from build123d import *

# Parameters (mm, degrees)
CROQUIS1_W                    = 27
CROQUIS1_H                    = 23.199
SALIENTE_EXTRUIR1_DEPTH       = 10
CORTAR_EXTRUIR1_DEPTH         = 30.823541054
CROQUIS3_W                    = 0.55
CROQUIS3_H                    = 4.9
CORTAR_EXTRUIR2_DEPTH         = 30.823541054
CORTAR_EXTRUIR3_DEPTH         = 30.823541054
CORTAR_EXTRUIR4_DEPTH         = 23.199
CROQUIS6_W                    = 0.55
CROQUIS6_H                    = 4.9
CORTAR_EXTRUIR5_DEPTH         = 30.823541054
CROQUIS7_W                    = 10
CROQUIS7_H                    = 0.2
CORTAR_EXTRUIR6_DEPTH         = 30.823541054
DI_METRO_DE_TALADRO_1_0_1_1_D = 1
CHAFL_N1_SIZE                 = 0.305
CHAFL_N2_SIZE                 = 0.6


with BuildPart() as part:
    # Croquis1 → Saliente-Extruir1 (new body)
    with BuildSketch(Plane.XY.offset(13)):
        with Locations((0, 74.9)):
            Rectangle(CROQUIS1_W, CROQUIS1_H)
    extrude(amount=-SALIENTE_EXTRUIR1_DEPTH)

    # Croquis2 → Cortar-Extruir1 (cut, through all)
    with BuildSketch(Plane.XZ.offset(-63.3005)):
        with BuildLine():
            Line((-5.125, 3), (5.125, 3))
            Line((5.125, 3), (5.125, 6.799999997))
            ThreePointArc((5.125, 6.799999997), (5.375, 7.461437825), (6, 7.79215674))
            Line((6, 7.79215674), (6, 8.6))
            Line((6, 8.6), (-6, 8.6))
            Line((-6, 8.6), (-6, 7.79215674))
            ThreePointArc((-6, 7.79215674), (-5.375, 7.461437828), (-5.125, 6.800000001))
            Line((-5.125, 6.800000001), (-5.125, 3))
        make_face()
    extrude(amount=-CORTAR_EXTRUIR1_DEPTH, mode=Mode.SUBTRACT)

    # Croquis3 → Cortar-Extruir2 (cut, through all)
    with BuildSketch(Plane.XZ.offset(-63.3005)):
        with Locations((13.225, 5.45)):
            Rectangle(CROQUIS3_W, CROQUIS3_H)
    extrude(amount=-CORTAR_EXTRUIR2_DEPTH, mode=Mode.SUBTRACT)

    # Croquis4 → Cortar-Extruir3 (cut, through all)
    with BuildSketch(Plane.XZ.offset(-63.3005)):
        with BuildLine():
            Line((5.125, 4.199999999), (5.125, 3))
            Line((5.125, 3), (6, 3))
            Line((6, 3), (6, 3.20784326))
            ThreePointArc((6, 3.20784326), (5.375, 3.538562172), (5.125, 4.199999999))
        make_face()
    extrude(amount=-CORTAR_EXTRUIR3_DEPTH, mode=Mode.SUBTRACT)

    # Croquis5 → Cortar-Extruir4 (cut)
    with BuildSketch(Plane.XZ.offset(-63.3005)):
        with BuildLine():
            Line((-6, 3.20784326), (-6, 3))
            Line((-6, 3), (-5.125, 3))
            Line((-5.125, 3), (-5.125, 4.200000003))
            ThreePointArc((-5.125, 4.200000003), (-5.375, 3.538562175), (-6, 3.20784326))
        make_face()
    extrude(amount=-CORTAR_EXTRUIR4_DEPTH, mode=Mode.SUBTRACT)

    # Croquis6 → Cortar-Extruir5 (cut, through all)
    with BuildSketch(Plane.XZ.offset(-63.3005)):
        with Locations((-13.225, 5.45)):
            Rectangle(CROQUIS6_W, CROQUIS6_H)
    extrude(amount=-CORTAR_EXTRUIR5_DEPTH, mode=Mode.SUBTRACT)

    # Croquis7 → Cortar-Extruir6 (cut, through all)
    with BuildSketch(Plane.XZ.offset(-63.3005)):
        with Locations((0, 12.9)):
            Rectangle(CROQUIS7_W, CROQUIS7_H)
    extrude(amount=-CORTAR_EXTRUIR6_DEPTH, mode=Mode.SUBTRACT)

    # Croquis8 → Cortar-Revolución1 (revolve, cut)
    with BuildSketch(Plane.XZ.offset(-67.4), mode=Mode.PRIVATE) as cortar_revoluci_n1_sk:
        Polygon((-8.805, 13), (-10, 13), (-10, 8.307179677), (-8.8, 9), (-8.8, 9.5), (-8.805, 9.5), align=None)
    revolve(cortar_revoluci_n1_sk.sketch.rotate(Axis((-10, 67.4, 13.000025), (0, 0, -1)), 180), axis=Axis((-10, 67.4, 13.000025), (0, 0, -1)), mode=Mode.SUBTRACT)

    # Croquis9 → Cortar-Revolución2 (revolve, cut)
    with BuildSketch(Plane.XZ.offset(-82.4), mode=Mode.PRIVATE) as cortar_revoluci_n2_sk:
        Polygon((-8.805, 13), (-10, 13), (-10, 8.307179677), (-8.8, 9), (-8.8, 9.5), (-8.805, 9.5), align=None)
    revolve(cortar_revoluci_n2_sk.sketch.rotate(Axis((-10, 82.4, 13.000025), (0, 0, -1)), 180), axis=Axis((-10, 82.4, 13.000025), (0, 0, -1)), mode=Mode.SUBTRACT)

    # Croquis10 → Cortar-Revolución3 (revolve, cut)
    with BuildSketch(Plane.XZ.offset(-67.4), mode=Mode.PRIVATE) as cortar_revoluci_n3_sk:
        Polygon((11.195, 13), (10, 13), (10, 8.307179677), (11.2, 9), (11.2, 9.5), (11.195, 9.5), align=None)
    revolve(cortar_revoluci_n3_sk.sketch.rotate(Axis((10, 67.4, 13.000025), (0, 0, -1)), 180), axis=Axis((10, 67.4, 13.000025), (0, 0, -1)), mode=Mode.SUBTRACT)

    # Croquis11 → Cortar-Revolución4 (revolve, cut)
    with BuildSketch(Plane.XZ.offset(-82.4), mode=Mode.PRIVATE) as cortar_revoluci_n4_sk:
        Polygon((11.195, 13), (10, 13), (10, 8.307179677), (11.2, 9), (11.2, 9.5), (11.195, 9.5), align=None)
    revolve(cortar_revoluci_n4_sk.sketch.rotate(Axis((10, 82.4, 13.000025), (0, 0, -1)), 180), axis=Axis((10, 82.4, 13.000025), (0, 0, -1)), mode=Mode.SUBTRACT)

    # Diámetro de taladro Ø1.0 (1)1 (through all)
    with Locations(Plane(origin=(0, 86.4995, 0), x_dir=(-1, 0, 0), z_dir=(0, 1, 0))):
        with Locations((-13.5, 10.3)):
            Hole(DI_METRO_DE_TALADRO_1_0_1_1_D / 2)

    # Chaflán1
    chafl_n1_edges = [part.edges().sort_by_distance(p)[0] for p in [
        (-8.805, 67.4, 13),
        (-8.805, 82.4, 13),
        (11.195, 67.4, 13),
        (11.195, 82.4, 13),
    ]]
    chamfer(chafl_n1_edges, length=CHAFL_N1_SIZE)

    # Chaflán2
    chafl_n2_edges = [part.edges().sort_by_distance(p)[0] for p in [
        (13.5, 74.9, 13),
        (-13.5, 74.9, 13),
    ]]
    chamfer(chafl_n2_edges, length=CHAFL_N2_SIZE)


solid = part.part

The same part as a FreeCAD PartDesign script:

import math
import FreeCAD as App
import Part
import Sketcher
Q = App.Units.Quantity


def edges_at(feature, points):
    """Names of the edges that pass closest to the given points."""
    edges = feature.Shape.Edges
    near = lambda p: min(range(len(edges)), key=lambda i: edges[i].distToShape(Part.Vertex(*p))[0])
    return sorted({f"Edge{near(p) + 1}" for p in points})


def add_polygon(sketch, points):
    """Adds a closed chain of lines whose ends are joined by coincident constraints."""
    first, n = sketch.GeometryCount, len(points)
    for a, b in zip(points, points[1:] + points[:1]):
        sketch.addGeometry(Part.LineSegment(App.Vector(*a, 0), App.Vector(*b, 0)), False)
    for i in range(n):
        sketch.addConstraint(Sketcher.Constraint("Coincident", first + i, 2, first + (i + 1) % n, 1))

doc = App.newDocument("Part")
body = doc.addObject("PartDesign::Body", "Body")

sketch1 = doc.addObject("Sketcher::SketchObject", "Sketch")
body.addObject(sketch1)
sketch1.AttachmentSupport = (doc.XY_Plane, [""])
sketch1.MapMode = "FlatFace"
sketch1.AttachmentOffset = App.Placement(App.Vector(0, 0, 13), App.Rotation())
add_polygon(sketch1, [(-14, 86), (-14, 63), (14, 63), (14, 86)])
sketch1.addConstraint([
    Sketcher.Constraint("Vertical", 0),
    Sketcher.Constraint("Horizontal", 1),
    Sketcher.Constraint("Vertical", 2),
    Sketcher.Constraint("Horizontal", 3),
    Sketcher.Constraint("DistanceX", 1, 1, 1, 2, Q("27 mm")),
    Sketcher.Constraint("DistanceX", 0, 2, -1, 1, Q("13.5 mm")),
    Sketcher.Constraint("DistanceY", 0, 2, 0, 1, Q("23.199 mm")),
    Sketcher.Constraint("DistanceY", -1, 1, 0, 2, Q("63.3005 mm")),
])
pad1 = doc.addObject("PartDesign::Pad", "Pad")
body.addObject(pad1)
pad1.Profile = sketch1
pad1.Length = 10
pad1.Reversed = True

sketch2 = doc.addObject("Sketcher::SketchObject", "Sketch001")
body.addObject(sketch2)
sketch2.AttachmentSupport = (doc.XZ_Plane, [""])
sketch2.MapMode = "FlatFace"
sketch2.AttachmentOffset = App.Placement(App.Vector(0, 0, -63.3005), App.Rotation())
sketch2.addGeometry([
    Part.LineSegment(App.Vector(-5.1, 3, 0), App.Vector(5.1, 3, 0)),
    Part.LineSegment(App.Vector(5.1, 3, 0), App.Vector(5.1, 6.8, 0)),
    Part.ArcOfCircle(Part.Circle(App.Vector(6.1, 6.8, 0), App.Vector(0, 0, 1), 1), math.radians(97), math.radians(180)),
    Part.LineSegment(App.Vector(6, 7.8, 0), App.Vector(6, 8.6, 0)),
    Part.LineSegment(App.Vector(6, 8.6, 0), App.Vector(-6, 8.6, 0)),
    Part.LineSegment(App.Vector(-6, 8.6, 0), App.Vector(-6, 7.8, 0)),
    Part.ArcOfCircle(Part.Circle(App.Vector(-6.1, 6.8, 0), App.Vector(0, 0, 1), 1), math.radians(0), math.radians(83)),
    Part.LineSegment(App.Vector(-5.1, 6.8, 0), App.Vector(-5.1, 3, 0)),
], False)
sketch2.addConstraint([
    Sketcher.Constraint("Coincident", 0, 2, 1, 1),
    Sketcher.Constraint("Tangent", 1, 2, 2, 2),
    Sketcher.Constraint("Coincident", 2, 1, 3, 1),
    Sketcher.Constraint("Coincident", 3, 2, 4, 1),
    Sketcher.Constraint("Coincident", 4, 2, 5, 1),
    Sketcher.Constraint("Coincident", 5, 2, 6, 2),
    Sketcher.Constraint("Tangent", 6, 1, 7, 1),
    Sketcher.Constraint("Coincident", 7, 2, 0, 1),
    Sketcher.Constraint("Horizontal", 0),
    Sketcher.Constraint("Vertical", 1),
    Sketcher.Constraint("Vertical", 3),
    Sketcher.Constraint("Horizontal", 4),
    Sketcher.Constraint("Vertical", 5),
    Sketcher.Constraint("Vertical", 7),
    Sketcher.Constraint("Equal", 2, 6),
    Sketcher.Constraint("Symmetric", 2, 3, 6, 3, -2),
    Sketcher.Constraint("Horizontal", 2, 1, 5, 2),
    Sketcher.Constraint("Radius", 2, Q("1 mm")),
    Sketcher.Constraint("DistanceX", 4, 2, 4, 1, Q("12 mm")),
    Sketcher.Constraint("DistanceY", 1, 1, 1, 2, Q("3.8 mm")),
    Sketcher.Constraint("DistanceY", -1, 1, 0, 2, Q("3 mm")),
    Sketcher.Constraint("DistanceX", 0, 1, 0, 2, Q("10.25 mm")),
    Sketcher.Constraint("DistanceY", -1, 1, 3, 2, Q("8.6 mm")),
])
pocket1 = doc.addObject("PartDesign::Pocket", "Pocket")
body.addObject(pocket1)
pocket1.Profile = sketch2
pocket1.Type = "ThroughAll"

sketch3 = doc.addObject("Sketcher::SketchObject", "Sketch002")
body.addObject(sketch3)
sketch3.AttachmentSupport = (doc.XZ_Plane, [""])
sketch3.MapMode = "FlatFace"
sketch3.AttachmentOffset = App.Placement(App.Vector(0, 0, -63.3005), App.Rotation())
add_polygon(sketch3, [(12.9, 7.9), (12.9, 3), (13.5, 3), (13.5, 7.9)])
sketch3.addConstraint([
    Sketcher.Constraint("Vertical", 0),
    Sketcher.Constraint("Horizontal", 1),
    Sketcher.Constraint("Vertical", 2),
    Sketcher.Constraint("Horizontal", 3),
    Sketcher.Constraint("DistanceY", 0, 2, 0, 1, Q("4.9 mm")),
    Sketcher.Constraint("DistanceY", -1, 1, 0, 2, Q("3 mm")),
    Sketcher.Constraint("DistanceX", 1, 1, 1, 2, Q("0.55 mm")),
    Sketcher.Constraint("DistanceX", -1, 1, 1, 2, Q("13.5 mm")),
])
pocket2 = doc.addObject("PartDesign::Pocket", "Pocket001")
body.addObject(pocket2)
pocket2.Profile = sketch3
pocket2.Type = "ThroughAll"

sketch4 = doc.addObject("Sketcher::SketchObject", "Sketch003")
body.addObject(sketch4)
sketch4.AttachmentSupport = (doc.XZ_Plane, [""])
sketch4.MapMode = "FlatFace"
sketch4.AttachmentOffset = App.Placement(App.Vector(0, 0, -63.3005), App.Rotation())
sketch4.addGeometry([
    Part.LineSegment(App.Vector(5.12, 4.2, 0), App.Vector(5.12, 3, 0)),
    Part.LineSegment(App.Vector(5.12, 3, 0), App.Vector(6, 3, 0)),
    Part.LineSegment(App.Vector(6, 3, 0), App.Vector(6, 3.21, 0)),
    Part.ArcOfCircle(Part.Circle(App.Vector(6.12, 4.2, 0), App.Vector(0, 0, 1), 1), math.radians(180), math.radians(263)),
], False)
sketch4.addConstraint([
    Sketcher.Constraint("Coincident", 0, 2, 1, 1),
    Sketcher.Constraint("Coincident", 1, 2, 2, 1),
    Sketcher.Constraint("Coincident", 2, 2, 3, 2),
    Sketcher.Constraint("Tangent", 3, 1, 0, 1),
    Sketcher.Constraint("Vertical", 0),
    Sketcher.Constraint("Horizontal", 1),
    Sketcher.Constraint("Vertical", 2),
    Sketcher.Constraint("Radius", 3, Q("1 mm")),
    Sketcher.Constraint("DistanceY", 0, 2, 0, 1, Q("1.2 mm")),
    Sketcher.Constraint("DistanceY", -1, 1, 0, 2, Q("3 mm")),
    Sketcher.Constraint("DistanceX", -1, 1, 1, 2, Q("6 mm")),
    Sketcher.Constraint("DistanceX", 1, 1, 1, 2, Q("0.875 mm")),
])
pocket3 = doc.addObject("PartDesign::Pocket", "Pocket002")
body.addObject(pocket3)
pocket3.Profile = sketch4
pocket3.Type = "ThroughAll"

sketch5 = doc.addObject("Sketcher::SketchObject", "Sketch004")
body.addObject(sketch5)
sketch5.AttachmentSupport = (doc.XZ_Plane, [""])
sketch5.MapMode = "FlatFace"
sketch5.AttachmentOffset = App.Placement(App.Vector(0, 0, -63.3005), App.Rotation())
sketch5.addGeometry([
    Part.LineSegment(App.Vector(-6, 3.21, 0), App.Vector(-6, 3, 0)),
    Part.LineSegment(App.Vector(-6, 3, 0), App.Vector(-5.12, 3, 0)),
    Part.LineSegment(App.Vector(-5.12, 3, 0), App.Vector(-5.12, 4.2, 0)),
    Part.ArcOfCircle(Part.Circle(App.Vector(-6.13, 4.2, 0), App.Vector(0, 0, 1), 1), math.radians(-83), math.radians(0)),
], False)
sketch5.addConstraint([
    Sketcher.Constraint("Coincident", 0, 2, 1, 1),
    Sketcher.Constraint("Coincident", 1, 2, 2, 1),
    Sketcher.Constraint("Tangent", 2, 2, 3, 2),
    Sketcher.Constraint("Coincident", 3, 1, 0, 1),
    Sketcher.Constraint("Vertical", 0),
    Sketcher.Constraint("Horizontal", 1),
    Sketcher.Constraint("Vertical", 2),
    Sketcher.Constraint("Radius", 3, Q("1 mm")),
    Sketcher.Constraint("DistanceY", 2, 1, 2, 2, Q("1.2 mm")),
    Sketcher.Constraint("DistanceX", 0, 2, -1, 1, Q("6 mm")),
    Sketcher.Constraint("DistanceY", -1, 1, 0, 2, Q("3 mm")),
    Sketcher.Constraint("DistanceX", 1, 1, 1, 2, Q("0.875 mm")),
])
pocket4 = doc.addObject("PartDesign::Pocket", "Pocket003")
body.addObject(pocket4)
pocket4.Profile = sketch5
pocket4.Length = 23.199

sketch6 = doc.addObject("Sketcher::SketchObject", "Sketch005")
body.addObject(sketch6)
sketch6.AttachmentSupport = (doc.XZ_Plane, [""])
sketch6.MapMode = "FlatFace"
sketch6.AttachmentOffset = App.Placement(App.Vector(0, 0, -63.3005), App.Rotation())
add_polygon(sketch6, [(-13.5, 7.9), (-13.5, 3), (-12.9, 3), (-12.9, 7.9)])
sketch6.addConstraint([
    Sketcher.Constraint("Vertical", 0),
    Sketcher.Constraint("Horizontal", 1),
    Sketcher.Constraint("Vertical", 2),
    Sketcher.Constraint("Horizontal", 3),
    Sketcher.Constraint("DistanceY", 0, 2, 0, 1, Q("4.9 mm")),
    Sketcher.Constraint("DistanceY", -1, 1, 0, 2, Q("3 mm")),
    Sketcher.Constraint("DistanceX", 1, 1, 1, 2, Q("0.55 mm")),
    Sketcher.Constraint("DistanceX", 0, 2, -1, 1, Q("13.5 mm")),
])
pocket5 = doc.addObject("PartDesign::Pocket", "Pocket004")
body.addObject(pocket5)
pocket5.Profile = sketch6
pocket5.Type = "ThroughAll"

sketch7 = doc.addObject("Sketcher::SketchObject", "Sketch006")
body.addObject(sketch7)
sketch7.AttachmentSupport = (doc.XZ_Plane, [""])
sketch7.MapMode = "FlatFace"
sketch7.AttachmentOffset = App.Placement(App.Vector(0, 0, -63.3005), App.Rotation())
add_polygon(sketch7, [(-5, 13), (-5, 12.8), (5, 12.8), (5, 13)])
sketch7.addConstraint([
    Sketcher.Constraint("Vertical", 0),
    Sketcher.Constraint("Horizontal", 1),
    Sketcher.Constraint("Vertical", 2),
    Sketcher.Constraint("Horizontal", 3),
    Sketcher.Constraint("DistanceX", 1, 1, 1, 2, Q("10 mm")),
    Sketcher.Constraint("DistanceY", 0, 2, 0, 1, Q("0.2 mm")),
    Sketcher.Constraint("DistanceX", 0, 2, -1, 1, Q("5 mm")),
    Sketcher.Constraint("DistanceY", -1, 1, 2, 2, Q("13 mm")),
])
pocket6 = doc.addObject("PartDesign::Pocket", "Pocket005")
body.addObject(pocket6)
pocket6.Profile = sketch7
pocket6.Type = "ThroughAll"

sketch8 = doc.addObject("Sketcher::SketchObject", "Sketch007")
body.addObject(sketch8)
sketch8.AttachmentSupport = (doc.XZ_Plane, [""])
sketch8.MapMode = "FlatFace"
sketch8.AttachmentOffset = App.Placement(App.Vector(0, 0, -67.4), App.Rotation())
add_polygon(sketch8, [(-8.805, 13), (-10, 13), (-10, 8.3072), (-8.8, 9), (-8.8, 9.5), (-8.805, 9.5)])
sketch8.addGeometry(Part.LineSegment(App.Vector(-10, 13, 0), App.Vector(-10, 8.3072, 0)), True)
sketch8.addConstraint([
    Sketcher.Constraint("Horizontal", 0),
    Sketcher.Constraint("Vertical", 1),
    Sketcher.Constraint("Vertical", 3),
    Sketcher.Constraint("Horizontal", 4),
    Sketcher.Constraint("Vertical", 5),
    Sketcher.Constraint("Vertical", 6),
    Sketcher.Constraint("Coincident", 6, 1, 0, 2),
    Sketcher.Constraint("Equal", 1, 6),
    Sketcher.Constraint("Angle", 2, Q("30 deg")),
    Sketcher.Constraint("DistanceY", 3, 1, 3, 2, Q("0.5 mm")),
    Sketcher.Constraint("DistanceY", 5, 1, 5, 2, Q("3.5 mm")),
    Sketcher.Constraint("DistanceX", 0, 2, -1, 1, Q("10 mm")),
    Sketcher.Constraint("DistanceY", -1, 1, 0, 2, Q("13 mm")),
    Sketcher.Constraint("DistanceX", 2, 2, -1, 1, Q("8.8 mm")),
    Sketcher.Constraint("DistanceX", 0, 2, 0, 1, Q("1.195 mm")),
])
groove = doc.addObject("PartDesign::Groove", "Groove")
body.addObject(groove)
groove.Profile = sketch8
groove.ReferenceAxis = (sketch8, ["Axis0"])
groove.Angle = 360

sketch9 = doc.addObject("Sketcher::SketchObject", "Sketch008")
body.addObject(sketch9)
sketch9.AttachmentSupport = (doc.XZ_Plane, [""])
sketch9.MapMode = "FlatFace"
sketch9.AttachmentOffset = App.Placement(App.Vector(0, 0, -82.4), App.Rotation())
add_polygon(sketch9, [(-8.805, 13), (-10, 13), (-10, 8.3072), (-8.8, 9), (-8.8, 9.5), (-8.805, 9.5)])
sketch9.addGeometry(Part.LineSegment(App.Vector(-10, 13, 0), App.Vector(-10, 8.3072, 0)), True)
sketch9.addConstraint([
    Sketcher.Constraint("Horizontal", 0),
    Sketcher.Constraint("Vertical", 1),
    Sketcher.Constraint("Vertical", 3),
    Sketcher.Constraint("Horizontal", 4),
    Sketcher.Constraint("Vertical", 5),
    Sketcher.Constraint("Vertical", 6),
    Sketcher.Constraint("Coincident", 6, 1, 0, 2),
    Sketcher.Constraint("Equal", 1, 6),
    Sketcher.Constraint("Angle", 2, Q("30 deg")),
    Sketcher.Constraint("DistanceY", 3, 1, 3, 2, Q("0.5 mm")),
    Sketcher.Constraint("DistanceY", 5, 1, 5, 2, Q("3.5 mm")),
    Sketcher.Constraint("DistanceX", 0, 2, -1, 1, Q("10 mm")),
    Sketcher.Constraint("DistanceY", -1, 1, 0, 2, Q("13 mm")),
    Sketcher.Constraint("DistanceX", 2, 2, -1, 1, Q("8.8 mm")),
    Sketcher.Constraint("DistanceX", 0, 2, 0, 1, Q("1.195 mm")),
])
groove2 = doc.addObject("PartDesign::Groove", "Groove001")
body.addObject(groove2)
groove2.Profile = sketch9
groove2.ReferenceAxis = (sketch9, ["Axis0"])
groove2.Angle = 360

sketch10 = doc.addObject("Sketcher::SketchObject", "Sketch009")
body.addObject(sketch10)
sketch10.AttachmentSupport = (doc.XZ_Plane, [""])
sketch10.MapMode = "FlatFace"
sketch10.AttachmentOffset = App.Placement(App.Vector(0, 0, -67.4), App.Rotation())
add_polygon(sketch10, [(11.195, 13), (10, 13), (10, 8.3072), (11.2, 9), (11.2, 9.5), (11.195, 9.5)])
sketch10.addGeometry(Part.LineSegment(App.Vector(10, 13, 0), App.Vector(10, 8.3072, 0)), True)
sketch10.addConstraint([
    Sketcher.Constraint("Horizontal", 0),
    Sketcher.Constraint("Vertical", 1),
    Sketcher.Constraint("Vertical", 3),
    Sketcher.Constraint("Horizontal", 4),
    Sketcher.Constraint("Vertical", 5),
    Sketcher.Constraint("Vertical", 6),
    Sketcher.Constraint("Coincident", 6, 1, 0, 2),
    Sketcher.Constraint("Equal", 1, 6),
    Sketcher.Constraint("Angle", 2, Q("30 deg")),
    Sketcher.Constraint("DistanceY", 3, 1, 3, 2, Q("0.5 mm")),
    Sketcher.Constraint("DistanceY", 5, 1, 5, 2, Q("3.5 mm")),
    Sketcher.Constraint("DistanceX", -1, 1, 0, 2, Q("10 mm")),
    Sketcher.Constraint("DistanceY", -1, 1, 0, 2, Q("13 mm")),
    Sketcher.Constraint("DistanceX", -1, 1, 2, 2, Q("11.2 mm")),
    Sketcher.Constraint("DistanceX", 0, 2, 0, 1, Q("1.195 mm")),
])
groove3 = doc.addObject("PartDesign::Groove", "Groove002")
body.addObject(groove3)
groove3.Profile = sketch10
groove3.ReferenceAxis = (sketch10, ["Axis0"])
groove3.Angle = 360

sketch11 = doc.addObject("Sketcher::SketchObject", "Sketch010")
body.addObject(sketch11)
sketch11.AttachmentSupport = (doc.XZ_Plane, [""])
sketch11.MapMode = "FlatFace"
sketch11.AttachmentOffset = App.Placement(App.Vector(0, 0, -82.4), App.Rotation())
add_polygon(sketch11, [(11.195, 13), (10, 13), (10, 8.3072), (11.2, 9), (11.2, 9.5), (11.195, 9.5)])
sketch11.addGeometry(Part.LineSegment(App.Vector(10, 13, 0), App.Vector(10, 8.3072, 0)), True)
sketch11.addConstraint([
    Sketcher.Constraint("Horizontal", 0),
    Sketcher.Constraint("Vertical", 1),
    Sketcher.Constraint("Vertical", 3),
    Sketcher.Constraint("Horizontal", 4),
    Sketcher.Constraint("Vertical", 5),
    Sketcher.Constraint("Vertical", 6),
    Sketcher.Constraint("Coincident", 6, 1, 0, 2),
    Sketcher.Constraint("Equal", 1, 6),
    Sketcher.Constraint("Angle", 2, Q("30 deg")),
    Sketcher.Constraint("DistanceY", 3, 1, 3, 2, Q("0.5 mm")),
    Sketcher.Constraint("DistanceY", 5, 1, 5, 2, Q("3.5 mm")),
    Sketcher.Constraint("DistanceX", -1, 1, 0, 2, Q("10 mm")),
    Sketcher.Constraint("DistanceY", -1, 1, 0, 2, Q("13 mm")),
    Sketcher.Constraint("DistanceX", -1, 1, 2, 2, Q("11.2 mm")),
    Sketcher.Constraint("DistanceX", 0, 2, 0, 1, Q("1.195 mm")),
])
groove4 = doc.addObject("PartDesign::Groove", "Groove003")
body.addObject(groove4)
groove4.Profile = sketch11
groove4.ReferenceAxis = (sketch11, ["Axis0"])
groove4.Angle = 360

sketch12 = doc.addObject("Sketcher::SketchObject", "Sketch011")
body.addObject(sketch12)
sketch12.AttachmentSupport = (doc.XZ_Plane, [""])
sketch12.MapMode = "FlatFace"
sketch12.AttachmentOffset = App.Placement(App.Vector(0, 0, -86.4995), App.Rotation())
sketch12.addGeometry(Part.Circle(App.Vector(13.5, 10.3, 0), App.Vector(0, 0, 1), 0.5), False)
sketch12.addConstraint([
    Sketcher.Constraint("Diameter", 0, Q("1 mm")),
    Sketcher.Constraint("DistanceX", -1, 1, 0, 3, Q("13.5 mm")),
    Sketcher.Constraint("DistanceY", -1, 1, 0, 3, Q("10.3 mm")),
])
doc.recompute()
hole = doc.addObject("PartDesign::Hole", "Hole")
body.addObject(hole)
hole.Profile = sketch12
hole.ThreadType = "None"
hole.Diameter = 1
hole.DepthType = "ThroughAll"
hole.Reversed = True
doc.recompute()

chamfer = doc.addObject("PartDesign::Chamfer", "Chamfer")
body.addObject(chamfer)
chamfer.Base = (hole, edges_at(hole, [
    (-8.805, 67.4, 13),
    (-8.805, 82.4, 13),
    (11.195, 67.4, 13),
    (11.195, 82.4, 13),
]))
chamfer.Size = 0.305
doc.recompute()

chamfer2 = doc.addObject("PartDesign::Chamfer", "Chamfer001")
body.addObject(chamfer2)
chamfer2.Base = (chamfer, edges_at(chamfer, [(13.5, 74.9, 13), (-13.5, 74.9, 13)]))
chamfer2.Size = 0.6

doc.recompute()
